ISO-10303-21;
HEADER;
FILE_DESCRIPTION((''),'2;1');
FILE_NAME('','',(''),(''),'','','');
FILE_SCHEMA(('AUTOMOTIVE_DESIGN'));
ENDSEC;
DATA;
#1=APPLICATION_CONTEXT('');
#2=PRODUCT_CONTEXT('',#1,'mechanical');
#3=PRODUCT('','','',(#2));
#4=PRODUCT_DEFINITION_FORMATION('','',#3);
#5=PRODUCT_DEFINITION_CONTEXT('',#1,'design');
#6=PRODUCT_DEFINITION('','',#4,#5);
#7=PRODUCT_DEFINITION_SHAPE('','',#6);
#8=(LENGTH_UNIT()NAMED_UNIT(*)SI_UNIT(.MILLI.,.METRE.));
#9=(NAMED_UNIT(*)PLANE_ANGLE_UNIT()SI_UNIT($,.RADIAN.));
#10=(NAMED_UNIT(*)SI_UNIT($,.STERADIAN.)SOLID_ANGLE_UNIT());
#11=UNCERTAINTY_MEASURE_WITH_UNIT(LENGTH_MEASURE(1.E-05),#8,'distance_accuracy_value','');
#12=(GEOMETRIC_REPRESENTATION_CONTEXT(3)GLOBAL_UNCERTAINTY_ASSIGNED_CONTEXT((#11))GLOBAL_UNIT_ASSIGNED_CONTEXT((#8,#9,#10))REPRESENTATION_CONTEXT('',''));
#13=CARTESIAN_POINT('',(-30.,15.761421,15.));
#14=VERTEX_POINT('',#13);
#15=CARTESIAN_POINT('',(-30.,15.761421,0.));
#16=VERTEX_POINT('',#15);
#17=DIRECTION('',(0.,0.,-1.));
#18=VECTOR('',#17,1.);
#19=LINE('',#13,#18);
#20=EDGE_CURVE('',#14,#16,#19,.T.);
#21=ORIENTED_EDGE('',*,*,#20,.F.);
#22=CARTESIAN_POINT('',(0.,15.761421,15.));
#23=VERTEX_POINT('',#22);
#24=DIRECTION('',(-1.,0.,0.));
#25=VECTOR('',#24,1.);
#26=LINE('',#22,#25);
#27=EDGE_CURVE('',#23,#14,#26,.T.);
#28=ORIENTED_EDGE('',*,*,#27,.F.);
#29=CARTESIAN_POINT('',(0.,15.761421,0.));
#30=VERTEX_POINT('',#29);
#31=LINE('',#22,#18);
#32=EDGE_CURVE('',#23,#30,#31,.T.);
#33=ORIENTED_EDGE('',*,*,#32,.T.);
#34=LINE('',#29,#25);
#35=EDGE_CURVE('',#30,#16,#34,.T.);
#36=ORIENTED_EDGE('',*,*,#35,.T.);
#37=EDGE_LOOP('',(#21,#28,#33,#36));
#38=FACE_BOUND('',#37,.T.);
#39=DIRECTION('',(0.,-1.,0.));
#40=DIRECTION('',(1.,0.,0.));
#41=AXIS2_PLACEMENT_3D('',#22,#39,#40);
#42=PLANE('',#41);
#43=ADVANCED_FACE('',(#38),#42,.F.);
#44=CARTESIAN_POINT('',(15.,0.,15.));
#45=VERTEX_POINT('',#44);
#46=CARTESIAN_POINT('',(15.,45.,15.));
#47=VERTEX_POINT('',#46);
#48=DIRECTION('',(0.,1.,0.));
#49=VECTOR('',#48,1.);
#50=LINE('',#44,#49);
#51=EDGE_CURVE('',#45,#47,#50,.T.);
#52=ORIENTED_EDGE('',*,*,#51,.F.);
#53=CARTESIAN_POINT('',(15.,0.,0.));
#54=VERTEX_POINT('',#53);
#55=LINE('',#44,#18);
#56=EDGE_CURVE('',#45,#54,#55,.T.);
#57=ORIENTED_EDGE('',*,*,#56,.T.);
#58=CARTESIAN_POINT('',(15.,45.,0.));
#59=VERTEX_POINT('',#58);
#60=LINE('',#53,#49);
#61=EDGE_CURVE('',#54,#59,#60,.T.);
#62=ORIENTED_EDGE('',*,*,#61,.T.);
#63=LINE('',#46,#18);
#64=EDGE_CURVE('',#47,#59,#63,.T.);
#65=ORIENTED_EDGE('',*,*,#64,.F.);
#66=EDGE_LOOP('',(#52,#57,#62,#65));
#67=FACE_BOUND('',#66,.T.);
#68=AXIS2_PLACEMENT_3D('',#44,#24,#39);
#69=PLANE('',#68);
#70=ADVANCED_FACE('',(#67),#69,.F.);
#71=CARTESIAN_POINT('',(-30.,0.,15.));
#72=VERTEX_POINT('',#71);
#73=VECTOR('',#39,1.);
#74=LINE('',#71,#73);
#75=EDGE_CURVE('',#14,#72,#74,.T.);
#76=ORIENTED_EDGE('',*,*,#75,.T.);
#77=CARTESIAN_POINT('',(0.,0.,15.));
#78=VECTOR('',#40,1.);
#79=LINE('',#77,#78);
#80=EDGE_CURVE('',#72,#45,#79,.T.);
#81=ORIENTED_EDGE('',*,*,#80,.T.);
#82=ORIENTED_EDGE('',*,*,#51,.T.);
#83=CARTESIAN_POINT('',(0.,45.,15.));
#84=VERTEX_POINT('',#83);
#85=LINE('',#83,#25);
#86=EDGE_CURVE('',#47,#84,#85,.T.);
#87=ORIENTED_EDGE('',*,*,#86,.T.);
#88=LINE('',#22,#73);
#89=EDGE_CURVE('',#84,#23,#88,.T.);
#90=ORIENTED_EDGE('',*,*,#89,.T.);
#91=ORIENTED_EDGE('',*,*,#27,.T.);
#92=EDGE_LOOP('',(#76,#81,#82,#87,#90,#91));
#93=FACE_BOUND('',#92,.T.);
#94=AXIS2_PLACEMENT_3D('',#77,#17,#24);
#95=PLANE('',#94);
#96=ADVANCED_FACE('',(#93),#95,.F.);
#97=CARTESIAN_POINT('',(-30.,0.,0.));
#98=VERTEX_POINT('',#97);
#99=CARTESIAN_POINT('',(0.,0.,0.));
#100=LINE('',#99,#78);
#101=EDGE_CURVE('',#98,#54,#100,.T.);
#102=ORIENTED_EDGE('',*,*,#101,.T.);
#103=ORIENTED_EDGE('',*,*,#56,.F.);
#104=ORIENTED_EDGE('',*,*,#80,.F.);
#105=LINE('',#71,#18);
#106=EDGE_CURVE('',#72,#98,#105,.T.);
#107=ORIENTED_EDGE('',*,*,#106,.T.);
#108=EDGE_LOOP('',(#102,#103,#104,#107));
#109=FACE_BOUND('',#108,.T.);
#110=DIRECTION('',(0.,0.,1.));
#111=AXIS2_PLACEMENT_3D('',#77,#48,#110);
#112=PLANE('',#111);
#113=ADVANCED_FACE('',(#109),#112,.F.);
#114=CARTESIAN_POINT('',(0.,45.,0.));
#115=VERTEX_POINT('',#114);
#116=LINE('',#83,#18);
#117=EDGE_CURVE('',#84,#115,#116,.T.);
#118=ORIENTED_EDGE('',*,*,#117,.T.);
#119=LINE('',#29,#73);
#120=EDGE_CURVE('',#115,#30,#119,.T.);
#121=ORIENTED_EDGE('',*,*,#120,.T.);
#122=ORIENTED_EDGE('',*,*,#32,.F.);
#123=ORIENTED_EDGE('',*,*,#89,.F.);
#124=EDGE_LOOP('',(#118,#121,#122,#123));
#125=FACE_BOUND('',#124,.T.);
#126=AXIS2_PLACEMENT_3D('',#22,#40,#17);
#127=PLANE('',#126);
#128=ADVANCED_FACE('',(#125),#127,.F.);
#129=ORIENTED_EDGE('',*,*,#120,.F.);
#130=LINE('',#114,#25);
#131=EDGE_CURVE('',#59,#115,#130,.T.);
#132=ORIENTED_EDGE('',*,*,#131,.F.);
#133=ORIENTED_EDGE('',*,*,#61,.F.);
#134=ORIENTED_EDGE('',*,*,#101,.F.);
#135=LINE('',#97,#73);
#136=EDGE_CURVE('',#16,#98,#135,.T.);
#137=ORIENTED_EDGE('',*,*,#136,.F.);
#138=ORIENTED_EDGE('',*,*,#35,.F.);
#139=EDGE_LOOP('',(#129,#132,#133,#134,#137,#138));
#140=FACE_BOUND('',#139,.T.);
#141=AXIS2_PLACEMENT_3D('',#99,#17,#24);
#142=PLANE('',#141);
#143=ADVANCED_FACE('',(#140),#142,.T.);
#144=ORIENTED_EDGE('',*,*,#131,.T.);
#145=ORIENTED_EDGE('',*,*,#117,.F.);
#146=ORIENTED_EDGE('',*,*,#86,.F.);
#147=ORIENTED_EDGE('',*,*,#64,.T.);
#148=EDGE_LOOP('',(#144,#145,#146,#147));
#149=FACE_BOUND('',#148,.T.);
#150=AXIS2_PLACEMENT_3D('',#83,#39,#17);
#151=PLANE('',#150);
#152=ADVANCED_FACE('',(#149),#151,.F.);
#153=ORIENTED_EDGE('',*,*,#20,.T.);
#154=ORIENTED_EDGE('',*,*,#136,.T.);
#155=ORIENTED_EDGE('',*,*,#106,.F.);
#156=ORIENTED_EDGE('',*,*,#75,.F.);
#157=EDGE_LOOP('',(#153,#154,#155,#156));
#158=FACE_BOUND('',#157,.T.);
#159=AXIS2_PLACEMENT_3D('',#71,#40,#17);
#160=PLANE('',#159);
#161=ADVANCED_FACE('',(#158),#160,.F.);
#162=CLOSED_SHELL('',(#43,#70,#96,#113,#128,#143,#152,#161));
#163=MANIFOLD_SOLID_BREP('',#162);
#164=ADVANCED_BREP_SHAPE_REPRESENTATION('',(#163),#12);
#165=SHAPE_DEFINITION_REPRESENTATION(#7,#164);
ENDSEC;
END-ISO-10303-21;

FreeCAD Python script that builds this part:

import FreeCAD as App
import Part
import Sketcher


def add_polygon(sketch, points):
    """Adds a closed chain of lines whose ends are joined by coincident constraints."""
    first, n = sketch.GeometryCount, len(points)
    for a, b in zip(points, points[1:] + points[:1]):
        sketch.addGeometry(Part.LineSegment(App.Vector(*a, 0), App.Vector(*b, 0)), False)
    for i in range(n):
        sketch.addConstraint(Sketcher.Constraint("Coincident", first + i, 2, first + (i + 1) % n, 1))

doc = App.newDocument("Part")
body = doc.addObject("PartDesign::Body", "Body")

sketch1 = doc.addObject("Sketcher::SketchObject", "Sketch")
body.addObject(sketch1)
sketch1.AttachmentSupport = (doc.XY_Plane, [""])
sketch1.MapMode = "FlatFace"
add_polygon(sketch1, [(15, 0), (15, 45), (0, 45), (0, 16), (-30, 16), (-30, 0)])
sketch1.addConstraint([
    Sketcher.Constraint("Vertical", 0),
    Sketcher.Constraint("Horizontal", 1),
    Sketcher.Constraint("Vertical", 2),
    Sketcher.Constraint("Horizontal", 3),
    Sketcher.Constraint("Vertical", 4),
    Sketcher.Constraint("Horizontal", 5),
    Sketcher.Constraint("PointOnObject", 1, 2, -2),
    Sketcher.Constraint("PointOnObject", 4, 2, -1),
    Sketcher.Constraint("Equal", 5, 0),
    Sketcher.Constraint("DistanceX", 1, 2, 1, 1, 15.0),
    Sketcher.Constraint("DistanceX", 3, 2, 3, 1, 30.0),
    Sketcher.Constraint("DistanceY", 2, 2, 2, 1, 29.238579),
])
pad1 = doc.addObject("PartDesign::Pad", "Pad")
body.addObject(pad1)
pad1.Profile = sketch1
pad1.Length = 15

doc.recompute()
